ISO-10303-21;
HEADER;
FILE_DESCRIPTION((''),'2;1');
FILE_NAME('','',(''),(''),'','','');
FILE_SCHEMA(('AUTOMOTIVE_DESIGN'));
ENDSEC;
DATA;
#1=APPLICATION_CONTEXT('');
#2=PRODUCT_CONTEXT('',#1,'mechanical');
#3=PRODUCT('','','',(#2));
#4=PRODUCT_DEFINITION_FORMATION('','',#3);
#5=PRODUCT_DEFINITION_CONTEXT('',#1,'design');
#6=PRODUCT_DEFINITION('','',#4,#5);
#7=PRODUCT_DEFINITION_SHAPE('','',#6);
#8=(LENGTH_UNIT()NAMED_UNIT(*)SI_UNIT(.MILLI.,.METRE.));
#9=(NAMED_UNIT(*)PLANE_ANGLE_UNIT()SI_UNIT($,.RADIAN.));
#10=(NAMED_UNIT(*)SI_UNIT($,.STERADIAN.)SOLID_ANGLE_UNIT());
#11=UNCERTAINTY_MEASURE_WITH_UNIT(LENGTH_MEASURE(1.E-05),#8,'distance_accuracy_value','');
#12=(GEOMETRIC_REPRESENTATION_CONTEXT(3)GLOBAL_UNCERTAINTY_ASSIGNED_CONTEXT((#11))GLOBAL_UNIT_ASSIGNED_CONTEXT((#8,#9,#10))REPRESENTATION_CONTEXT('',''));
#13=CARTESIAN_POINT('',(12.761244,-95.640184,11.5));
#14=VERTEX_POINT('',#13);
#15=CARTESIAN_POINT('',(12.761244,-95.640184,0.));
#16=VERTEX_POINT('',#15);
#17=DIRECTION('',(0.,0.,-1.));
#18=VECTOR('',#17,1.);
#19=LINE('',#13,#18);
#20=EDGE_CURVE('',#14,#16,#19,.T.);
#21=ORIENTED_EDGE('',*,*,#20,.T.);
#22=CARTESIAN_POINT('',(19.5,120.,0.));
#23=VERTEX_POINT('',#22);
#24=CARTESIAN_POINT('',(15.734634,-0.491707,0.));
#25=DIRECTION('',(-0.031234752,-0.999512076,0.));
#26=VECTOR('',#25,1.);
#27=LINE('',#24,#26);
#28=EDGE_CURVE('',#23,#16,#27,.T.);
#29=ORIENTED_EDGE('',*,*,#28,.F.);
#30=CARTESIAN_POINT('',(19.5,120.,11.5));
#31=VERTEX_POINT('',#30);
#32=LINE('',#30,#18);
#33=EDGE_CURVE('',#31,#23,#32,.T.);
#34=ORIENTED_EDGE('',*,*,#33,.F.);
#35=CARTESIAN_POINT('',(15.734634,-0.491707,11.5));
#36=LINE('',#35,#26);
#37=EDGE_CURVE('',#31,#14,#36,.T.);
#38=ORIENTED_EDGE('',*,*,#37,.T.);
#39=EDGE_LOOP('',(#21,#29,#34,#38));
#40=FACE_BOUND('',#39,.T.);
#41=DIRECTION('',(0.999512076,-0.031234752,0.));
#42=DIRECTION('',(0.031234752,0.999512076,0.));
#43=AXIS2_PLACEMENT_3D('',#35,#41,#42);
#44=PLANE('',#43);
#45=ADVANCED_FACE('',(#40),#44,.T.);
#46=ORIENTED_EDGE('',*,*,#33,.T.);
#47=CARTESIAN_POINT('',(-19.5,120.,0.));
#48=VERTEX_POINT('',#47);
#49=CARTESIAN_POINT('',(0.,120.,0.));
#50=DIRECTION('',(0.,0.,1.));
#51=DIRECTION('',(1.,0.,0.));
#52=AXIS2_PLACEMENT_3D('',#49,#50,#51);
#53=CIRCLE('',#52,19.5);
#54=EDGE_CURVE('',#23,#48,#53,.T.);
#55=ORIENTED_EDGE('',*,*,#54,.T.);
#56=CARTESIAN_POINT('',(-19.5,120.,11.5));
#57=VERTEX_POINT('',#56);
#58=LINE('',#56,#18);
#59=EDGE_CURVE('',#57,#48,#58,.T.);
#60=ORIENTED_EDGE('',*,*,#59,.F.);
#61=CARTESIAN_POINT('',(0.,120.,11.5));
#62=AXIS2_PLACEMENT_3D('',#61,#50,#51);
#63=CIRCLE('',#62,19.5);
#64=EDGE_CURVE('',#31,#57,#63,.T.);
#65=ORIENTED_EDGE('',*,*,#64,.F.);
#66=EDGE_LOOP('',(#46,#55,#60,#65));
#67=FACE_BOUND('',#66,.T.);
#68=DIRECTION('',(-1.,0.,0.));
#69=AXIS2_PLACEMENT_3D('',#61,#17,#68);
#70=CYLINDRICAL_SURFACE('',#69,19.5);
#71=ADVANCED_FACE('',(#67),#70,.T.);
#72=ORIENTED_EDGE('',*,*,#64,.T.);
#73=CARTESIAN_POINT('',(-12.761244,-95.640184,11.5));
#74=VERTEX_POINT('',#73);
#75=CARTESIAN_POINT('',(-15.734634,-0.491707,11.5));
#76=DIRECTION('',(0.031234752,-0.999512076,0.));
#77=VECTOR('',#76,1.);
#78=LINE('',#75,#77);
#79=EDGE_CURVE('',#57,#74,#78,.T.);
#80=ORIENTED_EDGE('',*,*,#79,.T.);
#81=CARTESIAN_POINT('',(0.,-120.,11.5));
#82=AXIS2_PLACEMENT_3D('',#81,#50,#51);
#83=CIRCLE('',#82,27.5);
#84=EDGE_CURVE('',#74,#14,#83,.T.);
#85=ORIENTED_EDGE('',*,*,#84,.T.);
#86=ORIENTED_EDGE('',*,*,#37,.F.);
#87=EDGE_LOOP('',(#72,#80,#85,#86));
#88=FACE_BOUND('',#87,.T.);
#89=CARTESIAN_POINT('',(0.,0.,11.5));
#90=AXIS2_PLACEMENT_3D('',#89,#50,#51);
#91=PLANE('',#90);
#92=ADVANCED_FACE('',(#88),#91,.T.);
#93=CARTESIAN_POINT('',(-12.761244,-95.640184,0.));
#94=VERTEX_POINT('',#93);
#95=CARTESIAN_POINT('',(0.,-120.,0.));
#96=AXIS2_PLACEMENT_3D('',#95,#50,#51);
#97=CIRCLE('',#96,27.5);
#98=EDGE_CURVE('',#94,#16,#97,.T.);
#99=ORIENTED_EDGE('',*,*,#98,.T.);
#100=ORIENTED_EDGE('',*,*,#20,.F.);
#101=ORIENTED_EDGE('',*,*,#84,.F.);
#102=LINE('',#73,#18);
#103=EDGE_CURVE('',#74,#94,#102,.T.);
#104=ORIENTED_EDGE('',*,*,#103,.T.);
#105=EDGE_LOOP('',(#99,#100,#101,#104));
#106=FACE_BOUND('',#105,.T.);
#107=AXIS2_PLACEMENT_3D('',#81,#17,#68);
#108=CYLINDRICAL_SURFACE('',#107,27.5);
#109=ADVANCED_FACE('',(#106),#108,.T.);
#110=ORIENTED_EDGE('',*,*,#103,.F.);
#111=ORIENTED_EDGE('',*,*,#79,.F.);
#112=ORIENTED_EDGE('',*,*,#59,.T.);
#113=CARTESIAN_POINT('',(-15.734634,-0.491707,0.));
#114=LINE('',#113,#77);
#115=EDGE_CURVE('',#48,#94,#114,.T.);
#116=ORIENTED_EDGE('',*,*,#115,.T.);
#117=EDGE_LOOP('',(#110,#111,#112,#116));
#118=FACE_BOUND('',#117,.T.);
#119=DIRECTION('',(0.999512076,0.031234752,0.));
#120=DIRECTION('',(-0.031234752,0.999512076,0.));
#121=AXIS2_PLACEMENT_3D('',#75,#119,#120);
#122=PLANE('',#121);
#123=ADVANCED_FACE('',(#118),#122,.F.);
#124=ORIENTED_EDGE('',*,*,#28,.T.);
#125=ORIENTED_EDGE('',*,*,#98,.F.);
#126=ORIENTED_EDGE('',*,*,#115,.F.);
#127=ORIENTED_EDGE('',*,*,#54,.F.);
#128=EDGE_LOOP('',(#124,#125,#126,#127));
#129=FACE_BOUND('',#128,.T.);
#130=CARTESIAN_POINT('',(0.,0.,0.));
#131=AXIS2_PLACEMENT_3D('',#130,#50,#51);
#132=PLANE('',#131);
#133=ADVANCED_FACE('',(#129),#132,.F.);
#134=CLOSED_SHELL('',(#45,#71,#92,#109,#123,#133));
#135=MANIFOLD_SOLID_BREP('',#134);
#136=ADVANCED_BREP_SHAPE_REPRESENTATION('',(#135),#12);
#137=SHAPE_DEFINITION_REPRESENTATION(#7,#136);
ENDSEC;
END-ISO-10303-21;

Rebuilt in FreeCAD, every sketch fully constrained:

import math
import FreeCAD as App
import Part
import Sketcher
Q = App.Units.Quantity

doc = App.newDocument("Part")
params = doc.addObject("Spreadsheet::Sheet", "Params")
for row, (alias, value) in enumerate([
    ("sketch1_radius", "19.5 mm"),
    ("sketch1_radius2", "27.5 mm"),
    ("pad1_length", "11.5 mm"),
], start=1):
    params.set(f"A{row}", alias)
    params.set(f"B{row}", "=" + value)
    params.setAlias(f"B{row}", alias)

body = doc.addObject("PartDesign::Body", "Body")

# Sketch on XY plane
sketch1 = body.newObject("Sketcher::SketchObject", "Sketch")
sketch1.AttachmentSupport = (doc.getObject("XY_Plane"), [""])
sketch1.MapMode = "FlatFace"
sketch1.addGeometry([
    Part.LineSegment(App.Vector(13, -96, 0), App.Vector(20, 120, 0)),
    Part.ArcOfCircle(Part.Circle(App.Vector(0, 120, 0), App.Vector(0, 0, 1), 20), math.radians(0), math.radians(180)),
    Part.LineSegment(App.Vector(-20, 120, 0), App.Vector(-13, -96, 0)),
    Part.ArcOfCircle(Part.Circle(App.Vector(0, -120, 0), App.Vector(0, 0, 1), 28), math.radians(118), math.radians(422)),
], False)
sketch1.addConstraint([
    Sketcher.Constraint("Coincident", 0, 2, 1, 1),
    Sketcher.Constraint("Coincident", 1, 2, 2, 1),
    Sketcher.Constraint("Coincident", 2, 2, 3, 1),
    Sketcher.Constraint("Coincident", 3, 2, 0, 1),
    Sketcher.Constraint("Symmetric", 1, 3, 3, 3, -1, 1),
    Sketcher.Constraint("Symmetric", 0, 2, 1, 2, -2),
    Sketcher.Constraint("Horizontal", 1, 3, 0, 2),
    Sketcher.Constraint("Horizontal", 2, 2, 3, 2),
    Sketcher.Constraint("Radius", 1, Q("19.5 mm")),
    Sketcher.Constraint("Radius", 3, Q("27.5 mm")),
    Sketcher.Constraint("DistanceY", -1, 1, 1, 3, Q("120 mm")),
    Sketcher.Constraint("Distance", 0, Q("215.745451 mm")),
])
sketch1.setExpression("Constraints[8]", "Params.sketch1_radius")
sketch1.setExpression("Constraints[9]", "Params.sketch1_radius2")
pad1 = body.newObject("PartDesign::Pad", "Pad")
pad1.Profile = sketch1
pad1.setExpression("Length", "Params.pad1_length")

doc.recompute()
